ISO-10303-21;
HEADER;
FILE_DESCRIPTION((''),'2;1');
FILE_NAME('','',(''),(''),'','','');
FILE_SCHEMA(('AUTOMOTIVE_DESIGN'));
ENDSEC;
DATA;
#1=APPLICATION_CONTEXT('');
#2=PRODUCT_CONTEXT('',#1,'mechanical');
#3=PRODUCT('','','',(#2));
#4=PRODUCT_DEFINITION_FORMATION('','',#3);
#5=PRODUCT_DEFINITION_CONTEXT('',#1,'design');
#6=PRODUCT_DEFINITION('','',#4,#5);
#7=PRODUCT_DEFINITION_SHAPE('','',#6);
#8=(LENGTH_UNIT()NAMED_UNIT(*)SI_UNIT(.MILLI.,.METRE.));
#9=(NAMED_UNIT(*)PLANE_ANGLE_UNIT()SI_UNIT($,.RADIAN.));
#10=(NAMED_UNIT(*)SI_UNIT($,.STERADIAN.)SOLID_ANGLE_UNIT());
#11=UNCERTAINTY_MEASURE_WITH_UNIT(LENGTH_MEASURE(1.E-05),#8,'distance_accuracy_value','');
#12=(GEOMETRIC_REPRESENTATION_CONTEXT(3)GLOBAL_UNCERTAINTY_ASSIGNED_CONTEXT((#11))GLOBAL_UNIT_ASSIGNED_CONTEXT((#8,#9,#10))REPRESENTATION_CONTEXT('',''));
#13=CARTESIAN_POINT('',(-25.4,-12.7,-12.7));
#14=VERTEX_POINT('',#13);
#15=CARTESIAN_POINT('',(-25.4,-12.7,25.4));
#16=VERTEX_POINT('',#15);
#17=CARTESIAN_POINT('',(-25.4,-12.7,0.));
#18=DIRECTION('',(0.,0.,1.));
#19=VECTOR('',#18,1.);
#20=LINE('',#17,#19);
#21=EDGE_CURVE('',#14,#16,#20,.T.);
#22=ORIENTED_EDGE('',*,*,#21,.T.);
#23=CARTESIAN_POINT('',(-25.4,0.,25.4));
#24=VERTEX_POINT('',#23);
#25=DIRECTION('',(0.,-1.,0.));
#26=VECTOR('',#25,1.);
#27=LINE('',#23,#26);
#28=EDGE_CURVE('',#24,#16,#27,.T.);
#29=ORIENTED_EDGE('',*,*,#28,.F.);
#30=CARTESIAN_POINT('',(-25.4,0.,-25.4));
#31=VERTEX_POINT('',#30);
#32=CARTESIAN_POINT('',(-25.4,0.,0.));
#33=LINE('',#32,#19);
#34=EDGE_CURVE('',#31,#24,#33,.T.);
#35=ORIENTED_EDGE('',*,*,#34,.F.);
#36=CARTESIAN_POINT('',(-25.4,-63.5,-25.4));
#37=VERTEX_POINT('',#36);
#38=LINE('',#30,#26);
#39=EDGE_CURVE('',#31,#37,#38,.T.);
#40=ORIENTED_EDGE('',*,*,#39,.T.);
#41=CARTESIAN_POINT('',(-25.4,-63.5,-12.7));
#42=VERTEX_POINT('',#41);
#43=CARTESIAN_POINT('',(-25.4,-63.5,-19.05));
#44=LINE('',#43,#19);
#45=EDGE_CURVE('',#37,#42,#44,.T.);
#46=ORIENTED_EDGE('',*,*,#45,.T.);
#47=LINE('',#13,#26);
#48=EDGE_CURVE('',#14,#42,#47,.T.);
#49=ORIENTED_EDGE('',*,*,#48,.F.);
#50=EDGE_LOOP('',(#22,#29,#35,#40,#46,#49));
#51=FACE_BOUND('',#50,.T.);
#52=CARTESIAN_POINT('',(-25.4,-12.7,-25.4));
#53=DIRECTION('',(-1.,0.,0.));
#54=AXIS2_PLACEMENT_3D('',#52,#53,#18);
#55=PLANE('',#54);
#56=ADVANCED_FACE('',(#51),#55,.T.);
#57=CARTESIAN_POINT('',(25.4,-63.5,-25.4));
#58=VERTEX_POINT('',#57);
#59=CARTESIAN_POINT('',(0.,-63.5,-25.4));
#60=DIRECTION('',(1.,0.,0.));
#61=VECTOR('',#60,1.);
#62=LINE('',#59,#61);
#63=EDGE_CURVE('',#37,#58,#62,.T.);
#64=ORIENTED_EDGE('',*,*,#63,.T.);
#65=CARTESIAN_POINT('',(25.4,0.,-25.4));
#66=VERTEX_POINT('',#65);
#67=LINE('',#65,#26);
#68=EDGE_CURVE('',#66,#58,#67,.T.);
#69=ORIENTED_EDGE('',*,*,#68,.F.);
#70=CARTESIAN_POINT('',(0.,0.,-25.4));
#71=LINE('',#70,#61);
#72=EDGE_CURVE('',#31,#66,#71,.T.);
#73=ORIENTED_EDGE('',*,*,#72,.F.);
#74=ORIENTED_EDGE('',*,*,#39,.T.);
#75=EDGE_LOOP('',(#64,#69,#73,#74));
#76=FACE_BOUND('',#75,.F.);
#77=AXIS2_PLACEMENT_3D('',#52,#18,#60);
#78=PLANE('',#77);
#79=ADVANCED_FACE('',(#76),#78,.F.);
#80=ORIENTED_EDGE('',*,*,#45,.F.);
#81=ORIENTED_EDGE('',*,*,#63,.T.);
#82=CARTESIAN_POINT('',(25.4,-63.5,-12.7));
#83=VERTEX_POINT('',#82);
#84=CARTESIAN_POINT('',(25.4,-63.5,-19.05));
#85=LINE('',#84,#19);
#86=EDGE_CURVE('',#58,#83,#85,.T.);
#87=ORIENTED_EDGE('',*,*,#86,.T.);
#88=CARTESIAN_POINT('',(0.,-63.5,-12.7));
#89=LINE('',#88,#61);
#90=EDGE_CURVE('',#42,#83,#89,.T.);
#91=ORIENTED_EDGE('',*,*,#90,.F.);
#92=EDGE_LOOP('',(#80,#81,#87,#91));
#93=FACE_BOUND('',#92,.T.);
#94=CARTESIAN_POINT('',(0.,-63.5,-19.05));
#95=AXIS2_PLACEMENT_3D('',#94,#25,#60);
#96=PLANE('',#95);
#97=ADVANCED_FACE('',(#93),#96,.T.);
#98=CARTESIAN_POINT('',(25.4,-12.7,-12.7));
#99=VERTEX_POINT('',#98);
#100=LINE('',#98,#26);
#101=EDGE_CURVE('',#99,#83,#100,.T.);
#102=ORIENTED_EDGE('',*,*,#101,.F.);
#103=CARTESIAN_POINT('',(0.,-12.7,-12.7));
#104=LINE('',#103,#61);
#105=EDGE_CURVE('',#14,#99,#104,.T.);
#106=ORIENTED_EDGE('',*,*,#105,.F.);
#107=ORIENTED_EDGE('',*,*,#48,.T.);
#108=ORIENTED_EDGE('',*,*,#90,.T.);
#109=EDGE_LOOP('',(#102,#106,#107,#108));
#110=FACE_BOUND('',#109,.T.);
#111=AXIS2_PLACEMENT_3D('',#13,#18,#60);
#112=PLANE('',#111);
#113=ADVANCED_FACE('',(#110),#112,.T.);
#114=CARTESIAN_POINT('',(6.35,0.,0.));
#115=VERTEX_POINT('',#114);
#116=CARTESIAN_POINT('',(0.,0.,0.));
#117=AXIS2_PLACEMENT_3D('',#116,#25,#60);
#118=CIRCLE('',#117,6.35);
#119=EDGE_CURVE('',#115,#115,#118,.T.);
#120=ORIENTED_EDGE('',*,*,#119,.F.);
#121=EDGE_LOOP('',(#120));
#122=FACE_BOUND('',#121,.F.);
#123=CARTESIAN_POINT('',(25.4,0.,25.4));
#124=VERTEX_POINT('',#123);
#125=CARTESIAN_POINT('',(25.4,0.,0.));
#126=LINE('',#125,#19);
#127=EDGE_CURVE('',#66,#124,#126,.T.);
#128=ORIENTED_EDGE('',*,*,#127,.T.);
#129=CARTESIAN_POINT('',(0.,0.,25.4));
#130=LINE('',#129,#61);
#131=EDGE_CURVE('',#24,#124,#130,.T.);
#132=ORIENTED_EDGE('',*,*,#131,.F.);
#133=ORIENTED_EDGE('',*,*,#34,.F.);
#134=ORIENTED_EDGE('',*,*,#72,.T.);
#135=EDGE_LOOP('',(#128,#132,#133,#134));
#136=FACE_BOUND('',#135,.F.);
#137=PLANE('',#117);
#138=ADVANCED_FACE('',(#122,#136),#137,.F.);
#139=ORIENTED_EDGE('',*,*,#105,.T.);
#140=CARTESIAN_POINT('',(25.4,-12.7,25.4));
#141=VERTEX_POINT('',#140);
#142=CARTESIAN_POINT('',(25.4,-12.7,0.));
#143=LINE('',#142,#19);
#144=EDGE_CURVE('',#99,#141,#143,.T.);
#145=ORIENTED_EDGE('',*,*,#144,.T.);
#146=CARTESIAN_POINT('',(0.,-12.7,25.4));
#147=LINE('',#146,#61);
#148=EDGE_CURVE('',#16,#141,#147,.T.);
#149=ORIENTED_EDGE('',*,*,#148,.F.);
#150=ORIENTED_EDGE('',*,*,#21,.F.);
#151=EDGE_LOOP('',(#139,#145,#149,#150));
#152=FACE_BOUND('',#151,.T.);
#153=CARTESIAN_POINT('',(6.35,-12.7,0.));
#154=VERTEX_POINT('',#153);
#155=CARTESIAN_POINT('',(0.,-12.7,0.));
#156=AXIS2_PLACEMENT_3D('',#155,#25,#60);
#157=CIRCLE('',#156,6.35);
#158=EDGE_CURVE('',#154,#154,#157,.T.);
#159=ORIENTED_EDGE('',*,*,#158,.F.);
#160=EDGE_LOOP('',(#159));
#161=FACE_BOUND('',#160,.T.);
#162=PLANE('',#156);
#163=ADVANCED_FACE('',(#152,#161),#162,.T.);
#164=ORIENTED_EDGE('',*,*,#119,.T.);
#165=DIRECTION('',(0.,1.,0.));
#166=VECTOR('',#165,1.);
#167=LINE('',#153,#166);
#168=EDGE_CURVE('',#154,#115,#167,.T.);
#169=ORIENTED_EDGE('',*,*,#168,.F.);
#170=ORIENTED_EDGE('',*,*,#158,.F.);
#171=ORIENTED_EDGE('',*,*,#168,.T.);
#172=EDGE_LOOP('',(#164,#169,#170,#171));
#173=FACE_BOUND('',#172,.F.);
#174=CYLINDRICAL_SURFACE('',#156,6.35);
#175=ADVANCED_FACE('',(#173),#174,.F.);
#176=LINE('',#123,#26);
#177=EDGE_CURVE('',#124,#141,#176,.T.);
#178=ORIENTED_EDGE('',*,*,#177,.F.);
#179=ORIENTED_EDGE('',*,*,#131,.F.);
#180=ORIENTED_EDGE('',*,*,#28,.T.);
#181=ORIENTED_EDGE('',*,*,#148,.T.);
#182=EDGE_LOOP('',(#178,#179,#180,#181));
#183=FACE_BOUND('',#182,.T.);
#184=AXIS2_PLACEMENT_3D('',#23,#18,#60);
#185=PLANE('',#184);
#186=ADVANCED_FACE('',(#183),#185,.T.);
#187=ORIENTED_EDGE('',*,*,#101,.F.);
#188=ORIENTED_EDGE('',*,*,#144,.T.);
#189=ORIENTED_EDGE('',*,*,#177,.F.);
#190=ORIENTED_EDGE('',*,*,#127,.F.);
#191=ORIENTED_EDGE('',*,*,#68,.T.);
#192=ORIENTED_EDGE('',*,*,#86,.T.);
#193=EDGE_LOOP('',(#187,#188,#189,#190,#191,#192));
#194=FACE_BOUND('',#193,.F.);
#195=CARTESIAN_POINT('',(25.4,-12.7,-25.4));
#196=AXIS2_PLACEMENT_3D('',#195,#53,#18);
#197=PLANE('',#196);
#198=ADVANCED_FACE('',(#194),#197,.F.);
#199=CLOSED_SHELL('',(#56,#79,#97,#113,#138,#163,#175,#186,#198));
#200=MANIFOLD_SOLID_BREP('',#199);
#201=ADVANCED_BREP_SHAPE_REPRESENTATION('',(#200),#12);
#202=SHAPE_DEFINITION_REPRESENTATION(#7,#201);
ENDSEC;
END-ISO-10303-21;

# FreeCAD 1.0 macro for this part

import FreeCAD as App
import Part
import Sketcher
Q = App.Units.Quantity

doc = App.newDocument("Part")
body = doc.addObject("PartDesign::Body", "Body")

# Sketch on XZ plane
sketch1 = doc.addObject("Sketcher::SketchObject", "Sketch")
body.addObject(sketch1)
sketch1.AttachmentSupport = (doc.XZ_Plane, [""])
sketch1.MapMode = "FlatFace"
sketch1.addGeometry([
    Part.LineSegment(App.Vector(-25, 25, 0), App.Vector(-25, -25, 0)),
    Part.LineSegment(App.Vector(-25, -25, 0), App.Vector(25, -25, 0)),
    Part.LineSegment(App.Vector(25, -25, 0), App.Vector(25, 25, 0)),
    Part.LineSegment(App.Vector(25, 25, 0), App.Vector(-25, 25, 0)),
], False)
sketch1.addConstraint([
    Sketcher.Constraint("Coincident", 0, 2, 1, 1),
    Sketcher.Constraint("Coincident", 1, 2, 2, 1),
    Sketcher.Constraint("Coincident", 2, 2, 3, 1),
    Sketcher.Constraint("Coincident", 3, 2, 0, 1),
    Sketcher.Constraint("Vertical", 0),
    Sketcher.Constraint("Horizontal", 1),
    Sketcher.Constraint("Vertical", 2),
    Sketcher.Constraint("Horizontal", 3),
    Sketcher.Constraint("Symmetric", 0, 2, 2, 2, -1, 1),
    Sketcher.Constraint("Equal", 3, 0),
    Sketcher.Constraint("DistanceX", 1, 1, 1, 2, Q("2 in")),
])
pad1 = doc.addObject("PartDesign::Pad", "Pad")
body.addObject(pad1)
pad1.Profile = sketch1
pad1.Length = Q("0.5 in")

# Sketch on XZ plane
sketch2 = doc.addObject("Sketcher::SketchObject", "Sketch001")
body.addObject(sketch2)
sketch2.AttachmentSupport = (doc.XZ_Plane, [""])
sketch2.MapMode = "FlatFace"
sketch2.AttachmentOffset = App.Placement(App.Vector(0, 0, 0.5 * 25.4), App.Rotation())
sketch2.addGeometry([
    Part.LineSegment(App.Vector(-25, -13, 0), App.Vector(-25, -25, 0)),
    Part.LineSegment(App.Vector(-25, -25, 0), App.Vector(25, -25, 0)),
    Part.LineSegment(App.Vector(25, -25, 0), App.Vector(25, -13, 0)),
    Part.LineSegment(App.Vector(25, -13, 0), App.Vector(-25, -13, 0)),
], False)
sketch2.addConstraint([
    Sketcher.Constraint("Coincident", 0, 2, 1, 1),
    Sketcher.Constraint("Coincident", 1, 2, 2, 1),
    Sketcher.Constraint("Coincident", 2, 2, 3, 1),
    Sketcher.Constraint("Coincident", 3, 2, 0, 1),
    Sketcher.Constraint("Vertical", 0),
    Sketcher.Constraint("Horizontal", 1),
    Sketcher.Constraint("Vertical", 2),
    Sketcher.Constraint("Horizontal", 3),
    Sketcher.Constraint("DistanceX", 1, 1, 1, 2, Q("2 in")),
    Sketcher.Constraint("DistanceY", 0, 2, 0, 1, Q("0.5 in")),
    Sketcher.Constraint("DistanceX", 0, 2, -1, 1, Q("1 in")),
    Sketcher.Constraint("DistanceY", 0, 2, -1, 1, Q("1 in")),
])
pad2 = doc.addObject("PartDesign::Pad", "Pad001")
body.addObject(pad2)
pad2.Profile = sketch2
pad2.Length = Q("2 in")

# Sketch on XZ plane
sketch3 = doc.addObject("Sketcher::SketchObject", "Sketch002")
body.addObject(sketch3)
sketch3.AttachmentSupport = (doc.XZ_Plane, [""])
sketch3.MapMode = "FlatFace"
sketch3.AttachmentOffset = App.Placement(App.Vector(0, 0, 0.5 * 25.4), App.Rotation())
sketch3.addGeometry(Part.Circle(App.Vector(0, 0, 0), App.Vector(0, 0, 1), 6), False)
sketch3.addConstraint([
    Sketcher.Constraint("Coincident", 0, 3, -1, 1),
    Sketcher.Constraint("Diameter", 0, Q("0.5 in")),
])
pocket1 = doc.addObject("PartDesign::Pocket", "Pocket")
body.addObject(pocket1)
pocket1.Profile = sketch3
pocket1.Type = "ThroughAll"

doc.recompute()
